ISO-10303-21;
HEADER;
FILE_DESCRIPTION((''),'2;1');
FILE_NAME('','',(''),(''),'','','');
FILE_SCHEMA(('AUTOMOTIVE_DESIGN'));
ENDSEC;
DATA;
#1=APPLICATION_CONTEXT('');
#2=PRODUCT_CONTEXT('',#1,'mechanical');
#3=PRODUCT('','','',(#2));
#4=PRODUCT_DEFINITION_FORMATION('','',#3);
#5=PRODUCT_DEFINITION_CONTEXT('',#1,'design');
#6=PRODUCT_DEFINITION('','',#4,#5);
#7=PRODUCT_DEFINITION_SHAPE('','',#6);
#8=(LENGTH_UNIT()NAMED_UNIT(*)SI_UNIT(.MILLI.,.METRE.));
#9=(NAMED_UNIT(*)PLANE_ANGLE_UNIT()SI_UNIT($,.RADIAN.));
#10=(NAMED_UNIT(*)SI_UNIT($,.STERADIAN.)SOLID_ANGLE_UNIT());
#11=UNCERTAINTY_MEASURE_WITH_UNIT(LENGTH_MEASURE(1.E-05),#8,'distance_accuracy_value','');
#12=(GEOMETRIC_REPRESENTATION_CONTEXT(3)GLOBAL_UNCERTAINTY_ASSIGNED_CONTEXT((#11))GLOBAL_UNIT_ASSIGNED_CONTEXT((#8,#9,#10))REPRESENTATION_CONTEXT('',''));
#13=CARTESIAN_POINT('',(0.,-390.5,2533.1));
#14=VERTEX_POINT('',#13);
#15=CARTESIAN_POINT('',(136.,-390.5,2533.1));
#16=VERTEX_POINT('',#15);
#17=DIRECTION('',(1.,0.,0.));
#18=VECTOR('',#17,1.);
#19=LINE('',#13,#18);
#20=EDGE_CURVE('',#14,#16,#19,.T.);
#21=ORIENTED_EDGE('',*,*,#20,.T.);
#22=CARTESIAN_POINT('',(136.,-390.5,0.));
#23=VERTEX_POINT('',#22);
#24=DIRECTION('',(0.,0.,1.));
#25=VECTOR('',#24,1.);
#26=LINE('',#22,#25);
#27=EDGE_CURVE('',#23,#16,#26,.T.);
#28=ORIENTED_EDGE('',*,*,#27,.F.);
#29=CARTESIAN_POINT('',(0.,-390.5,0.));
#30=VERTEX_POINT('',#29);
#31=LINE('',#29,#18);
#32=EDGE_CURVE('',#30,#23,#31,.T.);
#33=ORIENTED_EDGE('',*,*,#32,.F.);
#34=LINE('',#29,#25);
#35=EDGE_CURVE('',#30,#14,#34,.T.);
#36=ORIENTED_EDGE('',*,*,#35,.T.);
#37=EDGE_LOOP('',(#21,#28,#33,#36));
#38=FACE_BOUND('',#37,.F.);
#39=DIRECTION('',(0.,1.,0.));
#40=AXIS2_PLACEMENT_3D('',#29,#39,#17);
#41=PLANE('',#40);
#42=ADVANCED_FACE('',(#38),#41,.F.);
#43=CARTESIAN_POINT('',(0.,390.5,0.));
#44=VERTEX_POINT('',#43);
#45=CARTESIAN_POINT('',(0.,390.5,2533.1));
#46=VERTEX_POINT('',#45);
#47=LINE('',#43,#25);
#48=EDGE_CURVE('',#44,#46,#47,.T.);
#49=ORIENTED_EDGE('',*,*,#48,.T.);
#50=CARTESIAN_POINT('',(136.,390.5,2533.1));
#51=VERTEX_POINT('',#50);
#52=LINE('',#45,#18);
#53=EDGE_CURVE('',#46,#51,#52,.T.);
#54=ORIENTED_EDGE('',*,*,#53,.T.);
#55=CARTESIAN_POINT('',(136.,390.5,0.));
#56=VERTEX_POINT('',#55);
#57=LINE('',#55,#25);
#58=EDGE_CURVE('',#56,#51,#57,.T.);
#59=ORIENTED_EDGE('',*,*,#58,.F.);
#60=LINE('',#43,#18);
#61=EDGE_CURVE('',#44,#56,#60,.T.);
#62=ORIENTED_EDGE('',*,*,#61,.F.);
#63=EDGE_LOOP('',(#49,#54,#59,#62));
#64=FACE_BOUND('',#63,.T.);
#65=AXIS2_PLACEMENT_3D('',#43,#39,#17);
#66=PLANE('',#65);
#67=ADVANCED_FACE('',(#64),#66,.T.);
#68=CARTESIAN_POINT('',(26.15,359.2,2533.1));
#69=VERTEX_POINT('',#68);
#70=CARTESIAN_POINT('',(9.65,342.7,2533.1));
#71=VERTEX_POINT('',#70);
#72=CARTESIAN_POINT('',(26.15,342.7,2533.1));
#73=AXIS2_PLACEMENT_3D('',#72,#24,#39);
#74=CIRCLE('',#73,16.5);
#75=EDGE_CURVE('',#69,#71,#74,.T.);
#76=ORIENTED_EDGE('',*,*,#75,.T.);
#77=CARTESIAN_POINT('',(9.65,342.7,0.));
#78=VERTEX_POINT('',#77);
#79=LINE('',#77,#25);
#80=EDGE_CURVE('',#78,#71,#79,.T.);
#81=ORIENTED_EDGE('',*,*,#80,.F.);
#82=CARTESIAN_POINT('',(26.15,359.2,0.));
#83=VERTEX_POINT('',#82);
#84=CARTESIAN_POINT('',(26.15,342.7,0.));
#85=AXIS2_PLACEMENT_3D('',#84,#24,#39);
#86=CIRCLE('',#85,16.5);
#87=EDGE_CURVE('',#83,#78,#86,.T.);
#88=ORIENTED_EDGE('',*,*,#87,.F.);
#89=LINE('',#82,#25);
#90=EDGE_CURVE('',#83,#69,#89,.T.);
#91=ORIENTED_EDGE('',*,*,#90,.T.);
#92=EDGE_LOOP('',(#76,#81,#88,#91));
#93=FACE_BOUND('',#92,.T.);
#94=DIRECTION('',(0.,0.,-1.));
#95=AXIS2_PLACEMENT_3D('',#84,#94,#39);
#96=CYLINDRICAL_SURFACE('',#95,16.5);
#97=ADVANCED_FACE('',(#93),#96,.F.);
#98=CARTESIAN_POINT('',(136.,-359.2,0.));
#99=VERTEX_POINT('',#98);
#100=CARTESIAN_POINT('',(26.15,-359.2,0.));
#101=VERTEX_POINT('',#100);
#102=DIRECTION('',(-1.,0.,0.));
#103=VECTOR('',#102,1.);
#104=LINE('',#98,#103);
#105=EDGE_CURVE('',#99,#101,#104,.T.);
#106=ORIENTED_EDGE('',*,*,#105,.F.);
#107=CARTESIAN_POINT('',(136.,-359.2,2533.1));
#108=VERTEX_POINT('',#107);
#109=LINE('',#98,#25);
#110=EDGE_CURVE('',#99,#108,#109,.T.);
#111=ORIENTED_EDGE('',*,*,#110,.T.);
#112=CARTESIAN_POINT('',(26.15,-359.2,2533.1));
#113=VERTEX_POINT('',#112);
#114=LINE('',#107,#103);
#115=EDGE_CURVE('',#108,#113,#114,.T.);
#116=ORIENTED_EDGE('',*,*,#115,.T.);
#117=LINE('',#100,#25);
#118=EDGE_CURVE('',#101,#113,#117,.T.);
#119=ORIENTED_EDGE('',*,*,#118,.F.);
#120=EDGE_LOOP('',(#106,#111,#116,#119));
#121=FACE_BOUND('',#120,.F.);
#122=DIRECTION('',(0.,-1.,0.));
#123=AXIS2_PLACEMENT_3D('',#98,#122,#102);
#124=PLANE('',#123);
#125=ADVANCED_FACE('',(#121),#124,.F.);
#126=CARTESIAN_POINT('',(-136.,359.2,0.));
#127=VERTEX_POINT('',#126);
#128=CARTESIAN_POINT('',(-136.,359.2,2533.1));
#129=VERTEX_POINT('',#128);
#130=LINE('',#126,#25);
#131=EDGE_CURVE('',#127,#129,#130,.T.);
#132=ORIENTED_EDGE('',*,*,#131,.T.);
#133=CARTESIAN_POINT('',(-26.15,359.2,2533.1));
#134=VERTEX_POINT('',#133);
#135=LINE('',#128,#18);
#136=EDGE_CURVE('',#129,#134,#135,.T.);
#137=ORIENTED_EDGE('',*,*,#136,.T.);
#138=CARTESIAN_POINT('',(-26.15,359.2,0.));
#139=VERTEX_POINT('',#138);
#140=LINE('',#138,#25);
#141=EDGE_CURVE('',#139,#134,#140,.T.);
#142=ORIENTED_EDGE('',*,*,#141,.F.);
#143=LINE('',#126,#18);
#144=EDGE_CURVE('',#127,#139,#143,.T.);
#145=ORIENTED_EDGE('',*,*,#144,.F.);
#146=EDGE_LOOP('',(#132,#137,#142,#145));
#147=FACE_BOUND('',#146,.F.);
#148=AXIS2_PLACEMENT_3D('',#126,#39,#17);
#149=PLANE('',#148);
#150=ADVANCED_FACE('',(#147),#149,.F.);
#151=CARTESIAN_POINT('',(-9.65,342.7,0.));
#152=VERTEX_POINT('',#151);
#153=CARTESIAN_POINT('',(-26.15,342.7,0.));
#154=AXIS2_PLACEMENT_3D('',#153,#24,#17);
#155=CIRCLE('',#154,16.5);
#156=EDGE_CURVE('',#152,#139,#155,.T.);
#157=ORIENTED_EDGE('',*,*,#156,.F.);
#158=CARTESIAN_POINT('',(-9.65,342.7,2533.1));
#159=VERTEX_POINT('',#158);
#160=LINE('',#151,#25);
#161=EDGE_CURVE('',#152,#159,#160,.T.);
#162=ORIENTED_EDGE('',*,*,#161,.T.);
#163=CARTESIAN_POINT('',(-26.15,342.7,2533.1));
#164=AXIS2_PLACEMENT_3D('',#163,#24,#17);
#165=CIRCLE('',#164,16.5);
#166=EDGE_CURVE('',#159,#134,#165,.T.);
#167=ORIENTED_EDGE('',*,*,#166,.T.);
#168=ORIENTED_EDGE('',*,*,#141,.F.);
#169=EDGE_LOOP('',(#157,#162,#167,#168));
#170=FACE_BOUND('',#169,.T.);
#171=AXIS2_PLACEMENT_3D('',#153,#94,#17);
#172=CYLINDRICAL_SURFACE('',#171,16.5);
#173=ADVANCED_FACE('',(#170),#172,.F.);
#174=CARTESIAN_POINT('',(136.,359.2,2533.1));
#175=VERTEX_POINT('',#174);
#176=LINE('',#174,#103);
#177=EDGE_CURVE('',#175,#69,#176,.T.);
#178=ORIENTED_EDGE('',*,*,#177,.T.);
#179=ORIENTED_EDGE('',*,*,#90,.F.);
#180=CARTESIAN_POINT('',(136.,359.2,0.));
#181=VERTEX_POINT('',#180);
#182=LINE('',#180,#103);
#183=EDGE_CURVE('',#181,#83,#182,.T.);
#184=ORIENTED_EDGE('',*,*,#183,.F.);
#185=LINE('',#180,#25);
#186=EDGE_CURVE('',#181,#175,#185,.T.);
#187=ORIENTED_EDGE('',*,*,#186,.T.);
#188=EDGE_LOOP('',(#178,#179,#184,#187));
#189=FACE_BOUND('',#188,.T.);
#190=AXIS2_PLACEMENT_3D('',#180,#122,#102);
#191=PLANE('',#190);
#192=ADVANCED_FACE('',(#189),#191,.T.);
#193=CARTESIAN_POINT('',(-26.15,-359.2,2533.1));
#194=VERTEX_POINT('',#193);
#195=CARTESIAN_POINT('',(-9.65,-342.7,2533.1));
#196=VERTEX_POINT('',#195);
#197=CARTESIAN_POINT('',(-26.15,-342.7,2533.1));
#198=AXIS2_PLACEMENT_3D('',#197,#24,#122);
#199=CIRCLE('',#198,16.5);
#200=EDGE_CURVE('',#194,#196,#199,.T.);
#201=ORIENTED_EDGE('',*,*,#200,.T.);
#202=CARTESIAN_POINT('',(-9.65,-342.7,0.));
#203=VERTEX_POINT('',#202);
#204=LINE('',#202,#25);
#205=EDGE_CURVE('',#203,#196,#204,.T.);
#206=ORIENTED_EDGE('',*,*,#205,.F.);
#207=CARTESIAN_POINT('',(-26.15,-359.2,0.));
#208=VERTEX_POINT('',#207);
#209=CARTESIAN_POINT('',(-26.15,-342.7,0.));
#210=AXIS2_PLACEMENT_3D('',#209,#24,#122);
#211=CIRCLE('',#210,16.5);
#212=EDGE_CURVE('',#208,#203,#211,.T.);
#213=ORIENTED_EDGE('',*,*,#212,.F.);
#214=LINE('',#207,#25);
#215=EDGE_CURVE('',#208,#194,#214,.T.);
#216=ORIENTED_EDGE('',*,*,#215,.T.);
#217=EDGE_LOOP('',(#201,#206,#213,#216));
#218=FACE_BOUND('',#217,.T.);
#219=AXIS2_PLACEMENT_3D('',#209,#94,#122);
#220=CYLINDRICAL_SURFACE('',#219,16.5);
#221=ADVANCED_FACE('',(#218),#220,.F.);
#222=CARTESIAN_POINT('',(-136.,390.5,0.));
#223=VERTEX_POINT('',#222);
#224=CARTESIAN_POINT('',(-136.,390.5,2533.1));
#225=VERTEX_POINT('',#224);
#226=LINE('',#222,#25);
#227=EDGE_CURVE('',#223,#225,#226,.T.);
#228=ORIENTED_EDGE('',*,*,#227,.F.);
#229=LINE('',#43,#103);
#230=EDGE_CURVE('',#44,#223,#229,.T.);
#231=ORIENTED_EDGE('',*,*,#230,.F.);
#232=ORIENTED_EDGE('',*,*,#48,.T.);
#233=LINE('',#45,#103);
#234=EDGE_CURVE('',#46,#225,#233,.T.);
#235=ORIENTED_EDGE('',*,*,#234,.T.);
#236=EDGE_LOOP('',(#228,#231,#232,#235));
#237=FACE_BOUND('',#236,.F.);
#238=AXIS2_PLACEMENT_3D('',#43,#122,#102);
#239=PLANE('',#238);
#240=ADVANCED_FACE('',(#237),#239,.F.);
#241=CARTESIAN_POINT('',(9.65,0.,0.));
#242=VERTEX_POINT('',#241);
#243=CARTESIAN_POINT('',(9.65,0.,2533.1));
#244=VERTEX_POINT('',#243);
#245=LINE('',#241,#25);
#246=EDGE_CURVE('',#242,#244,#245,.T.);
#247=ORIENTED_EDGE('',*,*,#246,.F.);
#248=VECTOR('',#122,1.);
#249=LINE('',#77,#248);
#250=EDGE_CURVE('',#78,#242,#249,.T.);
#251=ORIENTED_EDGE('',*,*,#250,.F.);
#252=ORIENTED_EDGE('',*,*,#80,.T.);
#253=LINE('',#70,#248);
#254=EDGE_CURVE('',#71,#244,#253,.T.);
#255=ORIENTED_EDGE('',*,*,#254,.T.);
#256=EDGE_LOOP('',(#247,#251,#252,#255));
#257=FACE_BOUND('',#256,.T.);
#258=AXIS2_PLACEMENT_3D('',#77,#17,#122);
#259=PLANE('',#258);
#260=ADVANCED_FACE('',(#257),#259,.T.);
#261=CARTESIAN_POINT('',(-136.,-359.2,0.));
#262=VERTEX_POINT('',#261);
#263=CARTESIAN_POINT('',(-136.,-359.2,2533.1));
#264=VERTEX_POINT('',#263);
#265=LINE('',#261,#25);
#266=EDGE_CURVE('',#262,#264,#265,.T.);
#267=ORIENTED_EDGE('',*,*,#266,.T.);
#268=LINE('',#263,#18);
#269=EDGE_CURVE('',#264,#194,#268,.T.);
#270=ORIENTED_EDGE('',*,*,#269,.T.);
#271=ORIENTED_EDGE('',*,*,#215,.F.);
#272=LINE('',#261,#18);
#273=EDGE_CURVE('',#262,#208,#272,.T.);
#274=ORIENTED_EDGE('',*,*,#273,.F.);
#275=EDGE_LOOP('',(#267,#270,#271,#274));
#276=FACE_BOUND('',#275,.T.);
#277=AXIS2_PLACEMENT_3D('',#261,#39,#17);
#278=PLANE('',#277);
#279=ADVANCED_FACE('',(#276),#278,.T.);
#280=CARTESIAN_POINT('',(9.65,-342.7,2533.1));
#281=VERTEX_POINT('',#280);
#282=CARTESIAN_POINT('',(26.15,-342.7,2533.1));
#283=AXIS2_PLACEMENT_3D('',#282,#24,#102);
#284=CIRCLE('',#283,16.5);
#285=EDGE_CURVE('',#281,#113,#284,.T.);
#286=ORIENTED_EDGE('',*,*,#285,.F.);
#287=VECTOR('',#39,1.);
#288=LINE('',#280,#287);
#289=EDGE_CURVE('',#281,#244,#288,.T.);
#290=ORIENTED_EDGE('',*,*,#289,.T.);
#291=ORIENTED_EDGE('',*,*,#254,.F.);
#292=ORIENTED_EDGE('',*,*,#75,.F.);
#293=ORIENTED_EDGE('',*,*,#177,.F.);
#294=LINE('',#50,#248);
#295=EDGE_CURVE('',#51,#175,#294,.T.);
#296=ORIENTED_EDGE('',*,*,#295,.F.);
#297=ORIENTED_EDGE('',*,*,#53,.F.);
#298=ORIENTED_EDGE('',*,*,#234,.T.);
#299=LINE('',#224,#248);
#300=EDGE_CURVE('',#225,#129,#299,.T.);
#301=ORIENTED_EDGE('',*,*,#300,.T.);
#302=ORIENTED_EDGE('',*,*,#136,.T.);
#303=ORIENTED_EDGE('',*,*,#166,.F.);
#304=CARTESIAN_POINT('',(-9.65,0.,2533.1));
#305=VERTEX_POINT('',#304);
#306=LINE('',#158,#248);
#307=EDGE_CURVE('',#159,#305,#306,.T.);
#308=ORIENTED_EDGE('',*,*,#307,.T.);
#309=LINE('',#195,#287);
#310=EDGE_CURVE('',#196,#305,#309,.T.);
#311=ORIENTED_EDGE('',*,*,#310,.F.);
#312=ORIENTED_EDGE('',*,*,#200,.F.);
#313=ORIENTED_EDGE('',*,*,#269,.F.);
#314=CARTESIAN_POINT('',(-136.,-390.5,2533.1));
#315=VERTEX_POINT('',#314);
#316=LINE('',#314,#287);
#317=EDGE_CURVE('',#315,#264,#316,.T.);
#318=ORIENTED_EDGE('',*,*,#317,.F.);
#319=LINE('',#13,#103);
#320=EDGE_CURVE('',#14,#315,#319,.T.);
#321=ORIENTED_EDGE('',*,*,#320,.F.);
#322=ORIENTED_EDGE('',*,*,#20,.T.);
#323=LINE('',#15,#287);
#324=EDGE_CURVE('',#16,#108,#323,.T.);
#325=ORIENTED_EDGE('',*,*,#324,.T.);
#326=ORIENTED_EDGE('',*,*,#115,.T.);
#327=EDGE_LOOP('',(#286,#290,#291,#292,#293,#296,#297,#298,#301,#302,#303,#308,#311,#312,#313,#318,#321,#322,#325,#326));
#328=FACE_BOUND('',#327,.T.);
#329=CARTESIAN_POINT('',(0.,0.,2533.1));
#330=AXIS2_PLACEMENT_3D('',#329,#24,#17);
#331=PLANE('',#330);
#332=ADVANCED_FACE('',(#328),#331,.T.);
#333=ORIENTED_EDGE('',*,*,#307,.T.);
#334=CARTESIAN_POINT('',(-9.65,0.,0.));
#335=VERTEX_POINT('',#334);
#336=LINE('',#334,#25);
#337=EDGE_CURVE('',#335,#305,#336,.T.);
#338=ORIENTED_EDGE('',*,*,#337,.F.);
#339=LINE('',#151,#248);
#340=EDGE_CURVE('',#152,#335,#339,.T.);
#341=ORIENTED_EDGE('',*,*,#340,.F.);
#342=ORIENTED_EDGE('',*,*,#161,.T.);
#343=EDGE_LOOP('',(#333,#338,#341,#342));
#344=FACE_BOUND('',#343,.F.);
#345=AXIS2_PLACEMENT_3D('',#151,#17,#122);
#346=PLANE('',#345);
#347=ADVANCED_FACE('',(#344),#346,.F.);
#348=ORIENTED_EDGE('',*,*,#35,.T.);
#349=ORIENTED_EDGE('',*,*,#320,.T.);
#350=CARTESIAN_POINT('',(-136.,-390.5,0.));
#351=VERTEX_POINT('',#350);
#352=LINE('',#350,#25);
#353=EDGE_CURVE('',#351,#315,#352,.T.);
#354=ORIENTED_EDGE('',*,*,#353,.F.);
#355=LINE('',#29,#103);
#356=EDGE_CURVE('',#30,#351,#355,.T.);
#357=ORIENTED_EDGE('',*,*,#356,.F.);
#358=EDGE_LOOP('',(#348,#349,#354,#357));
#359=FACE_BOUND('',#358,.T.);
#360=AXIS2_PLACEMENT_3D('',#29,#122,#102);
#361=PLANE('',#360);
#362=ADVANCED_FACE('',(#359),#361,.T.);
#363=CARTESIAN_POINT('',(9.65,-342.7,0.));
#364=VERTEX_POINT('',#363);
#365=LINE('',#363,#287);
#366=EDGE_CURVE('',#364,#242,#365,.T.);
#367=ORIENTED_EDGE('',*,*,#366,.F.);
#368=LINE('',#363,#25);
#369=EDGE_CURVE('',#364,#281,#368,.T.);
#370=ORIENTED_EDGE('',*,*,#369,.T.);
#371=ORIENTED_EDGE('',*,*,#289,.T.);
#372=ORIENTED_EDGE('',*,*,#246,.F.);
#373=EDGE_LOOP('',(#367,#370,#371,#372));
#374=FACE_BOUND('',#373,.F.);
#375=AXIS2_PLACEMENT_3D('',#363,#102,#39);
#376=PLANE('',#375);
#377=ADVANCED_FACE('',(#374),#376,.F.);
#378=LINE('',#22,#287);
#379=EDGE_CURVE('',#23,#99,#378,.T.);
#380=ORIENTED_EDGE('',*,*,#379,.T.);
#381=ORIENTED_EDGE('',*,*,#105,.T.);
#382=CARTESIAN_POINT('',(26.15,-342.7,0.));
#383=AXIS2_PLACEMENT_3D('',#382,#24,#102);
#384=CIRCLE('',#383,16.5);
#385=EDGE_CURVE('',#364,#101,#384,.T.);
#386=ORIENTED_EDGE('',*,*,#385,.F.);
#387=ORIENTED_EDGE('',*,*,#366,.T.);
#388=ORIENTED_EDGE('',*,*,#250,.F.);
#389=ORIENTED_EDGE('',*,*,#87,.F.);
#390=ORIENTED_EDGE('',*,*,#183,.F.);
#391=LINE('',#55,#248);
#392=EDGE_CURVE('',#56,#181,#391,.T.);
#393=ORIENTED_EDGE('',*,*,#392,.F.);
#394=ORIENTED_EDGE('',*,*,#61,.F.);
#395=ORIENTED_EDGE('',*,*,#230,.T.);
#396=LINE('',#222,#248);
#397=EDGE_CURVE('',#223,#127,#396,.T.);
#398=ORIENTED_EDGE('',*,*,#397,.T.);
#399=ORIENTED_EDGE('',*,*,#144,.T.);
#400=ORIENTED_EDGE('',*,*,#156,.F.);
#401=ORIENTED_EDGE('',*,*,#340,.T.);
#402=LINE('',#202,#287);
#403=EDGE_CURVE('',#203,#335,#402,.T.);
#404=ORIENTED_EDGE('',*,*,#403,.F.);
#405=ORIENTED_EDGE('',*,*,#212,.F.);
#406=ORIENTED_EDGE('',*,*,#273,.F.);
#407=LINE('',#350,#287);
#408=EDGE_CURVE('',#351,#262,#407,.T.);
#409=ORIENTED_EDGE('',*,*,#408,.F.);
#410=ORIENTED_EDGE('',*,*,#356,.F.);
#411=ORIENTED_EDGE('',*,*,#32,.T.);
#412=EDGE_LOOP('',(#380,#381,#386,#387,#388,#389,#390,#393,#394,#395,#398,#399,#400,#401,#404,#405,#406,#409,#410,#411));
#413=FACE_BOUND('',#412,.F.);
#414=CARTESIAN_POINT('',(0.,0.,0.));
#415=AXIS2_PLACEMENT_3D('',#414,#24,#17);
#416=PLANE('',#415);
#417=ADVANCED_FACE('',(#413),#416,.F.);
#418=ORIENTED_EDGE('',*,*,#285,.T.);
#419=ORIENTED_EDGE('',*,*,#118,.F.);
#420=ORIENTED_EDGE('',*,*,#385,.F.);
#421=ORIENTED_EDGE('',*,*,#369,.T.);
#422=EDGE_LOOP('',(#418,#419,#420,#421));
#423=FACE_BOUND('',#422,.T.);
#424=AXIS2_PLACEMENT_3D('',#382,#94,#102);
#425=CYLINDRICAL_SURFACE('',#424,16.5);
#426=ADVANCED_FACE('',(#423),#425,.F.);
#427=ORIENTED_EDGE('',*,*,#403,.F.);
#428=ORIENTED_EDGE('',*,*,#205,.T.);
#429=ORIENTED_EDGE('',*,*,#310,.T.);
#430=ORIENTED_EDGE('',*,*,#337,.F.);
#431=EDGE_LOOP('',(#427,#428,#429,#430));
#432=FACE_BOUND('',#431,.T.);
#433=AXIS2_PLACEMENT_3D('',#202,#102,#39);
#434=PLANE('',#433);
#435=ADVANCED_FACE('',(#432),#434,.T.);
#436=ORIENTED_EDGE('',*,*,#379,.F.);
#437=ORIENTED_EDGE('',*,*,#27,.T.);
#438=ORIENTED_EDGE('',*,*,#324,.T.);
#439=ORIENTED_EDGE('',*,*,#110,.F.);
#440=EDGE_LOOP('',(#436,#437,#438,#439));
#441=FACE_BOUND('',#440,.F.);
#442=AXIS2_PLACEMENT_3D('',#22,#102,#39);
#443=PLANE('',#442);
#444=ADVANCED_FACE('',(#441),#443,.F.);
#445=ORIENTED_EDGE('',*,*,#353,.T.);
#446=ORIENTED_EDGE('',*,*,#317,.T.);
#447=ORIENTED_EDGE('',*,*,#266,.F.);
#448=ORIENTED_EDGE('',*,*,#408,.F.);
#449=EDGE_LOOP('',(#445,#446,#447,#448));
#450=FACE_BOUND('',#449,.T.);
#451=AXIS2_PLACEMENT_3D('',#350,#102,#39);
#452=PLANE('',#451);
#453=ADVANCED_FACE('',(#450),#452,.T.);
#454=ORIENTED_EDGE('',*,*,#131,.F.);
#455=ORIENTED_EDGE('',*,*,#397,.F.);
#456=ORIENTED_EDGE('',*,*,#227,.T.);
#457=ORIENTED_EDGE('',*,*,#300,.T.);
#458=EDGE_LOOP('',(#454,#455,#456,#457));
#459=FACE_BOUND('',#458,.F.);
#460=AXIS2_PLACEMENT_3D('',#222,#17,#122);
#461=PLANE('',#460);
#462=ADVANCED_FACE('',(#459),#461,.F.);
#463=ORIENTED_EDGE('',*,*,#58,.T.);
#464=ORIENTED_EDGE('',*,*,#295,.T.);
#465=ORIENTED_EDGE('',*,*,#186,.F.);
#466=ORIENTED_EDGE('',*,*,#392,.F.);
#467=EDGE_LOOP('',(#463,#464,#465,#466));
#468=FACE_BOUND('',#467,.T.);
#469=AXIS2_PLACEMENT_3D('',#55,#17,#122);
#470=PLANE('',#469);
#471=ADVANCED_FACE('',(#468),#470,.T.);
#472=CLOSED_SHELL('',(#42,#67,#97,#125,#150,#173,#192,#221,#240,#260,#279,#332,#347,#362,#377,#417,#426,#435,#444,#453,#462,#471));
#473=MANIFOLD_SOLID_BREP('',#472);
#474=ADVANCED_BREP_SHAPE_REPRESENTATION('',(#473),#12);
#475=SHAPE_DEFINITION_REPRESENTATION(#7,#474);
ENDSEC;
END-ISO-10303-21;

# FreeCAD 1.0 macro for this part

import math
import FreeCAD as App
import Part
import Sketcher

doc = App.newDocument("Part")
body = doc.addObject("PartDesign::Body", "Body")

# Sketch on XY plane
sketch1 = body.newObject("Sketcher::SketchObject", "Sketch")
sketch1.AttachmentSupport = (doc.getObject("XY_Plane"), [""])
sketch1.MapMode = "FlatFace"
sketch1.addGeometry([
    Part.LineSegment(App.Vector(-136, -359, 0), App.Vector(-136, -390, 0)),  # 0
    Part.LineSegment(App.Vector(-136, -390, 0), App.Vector(136, -390, 0)),  # 1
    Part.LineSegment(App.Vector(136, -390, 0), App.Vector(136, -359, 0)),  # 2
    Part.LineSegment(App.Vector(136, -359, 0), App.Vector(26, -359, 0)),  # 3
    Part.ArcOfCircle(Part.Circle(App.Vector(26, -343, 0), App.Vector(0, 0, 1), 16), math.radians(180), math.radians(270)),  # 4
    Part.LineSegment(App.Vector(10, -343, 0), App.Vector(10, 343, 0)),  # 5
    Part.ArcOfCircle(Part.Circle(App.Vector(26, 343, 0), App.Vector(0, 0, 1), 16), math.radians(90), math.radians(180)),  # 6
    Part.LineSegment(App.Vector(26, 359, 0), App.Vector(136, 359, 0)),  # 7
    Part.LineSegment(App.Vector(136, 359, 0), App.Vector(136, 390, 0)),  # 8
    Part.LineSegment(App.Vector(136, 390, 0), App.Vector(-136, 390, 0)),  # 9
    Part.LineSegment(App.Vector(-136, 390, 0), App.Vector(-136, 359, 0)),  # 10
    Part.LineSegment(App.Vector(-136, 359, 0), App.Vector(-26, 359, 0)),  # 11
    Part.ArcOfCircle(Part.Circle(App.Vector(-26, 343, 0), App.Vector(0, 0, 1), 16), math.radians(0), math.radians(90)),  # 12
    Part.LineSegment(App.Vector(-10, 343, 0), App.Vector(-10, -343, 0)),  # 13
    Part.ArcOfCircle(Part.Circle(App.Vector(-26, -343, 0), App.Vector(0, 0, 1), 16), math.radians(-90), math.radians(0)),  # 14
    Part.LineSegment(App.Vector(-26, -359, 0), App.Vector(-136, -359, 0)),  # 15
], False)
sketch1.addConstraint([
    Sketcher.Constraint("Coincident", 0, 2, 1, 1),
    Sketcher.Constraint("Coincident", 1, 2, 2, 1),
    Sketcher.Constraint("Coincident", 2, 2, 3, 1),
    Sketcher.Constraint("Tangent", 3, 2, 4, 2),
    Sketcher.Constraint("Tangent", 4, 1, 5, 1),
    Sketcher.Constraint("Tangent", 5, 2, 6, 2),
    Sketcher.Constraint("Tangent", 6, 1, 7, 1),
    Sketcher.Constraint("Coincident", 7, 2, 8, 1),
    Sketcher.Constraint("Coincident", 8, 2, 9, 1),
    Sketcher.Constraint("Coincident", 9, 2, 10, 1),
    Sketcher.Constraint("Coincident", 10, 2, 11, 1),
    Sketcher.Constraint("Tangent", 11, 2, 12, 2),
    Sketcher.Constraint("Tangent", 12, 1, 13, 1),
    Sketcher.Constraint("Tangent", 13, 2, 14, 2),
    Sketcher.Constraint("Tangent", 14, 1, 15, 1),
    Sketcher.Constraint("Coincident", 15, 2, 0, 1),
    Sketcher.Constraint("Vertical", 0),
    Sketcher.Constraint("Horizontal", 1),
    Sketcher.Constraint("Vertical", 2),
    Sketcher.Constraint("Horizontal", 3),
    Sketcher.Constraint("Vertical", 5),
    Sketcher.Constraint("Horizontal", 7),
    Sketcher.Constraint("Vertical", 8),
    Sketcher.Constraint("Horizontal", 9),
    Sketcher.Constraint("Vertical", 10),
    Sketcher.Constraint("Horizontal", 11),
    Sketcher.Constraint("Vertical", 13),
    Sketcher.Constraint("Horizontal", 15),
    Sketcher.Constraint("Equal", 4, 6),
    Sketcher.Constraint("Equal", 6, 12),
    Sketcher.Constraint("Equal", 12, 14),
    Sketcher.Constraint("Symmetric", 4, 3, 12, 3, -1, 1),
    Sketcher.Constraint("Symmetric", 0, 2, 8, 2, -1, 1),
    Sketcher.Constraint("Symmetric", 7, 2, 10, 2, -2),
    Sketcher.Constraint("Symmetric", 2, 2, 15, 2, -2),
    Sketcher.Constraint("Radius", 4, 16.5),
    Sketcher.Constraint("DistanceY", 0, 2, 0, 1, 31.3),
    Sketcher.Constraint("DistanceX", 0, 2, -1, 1, 136.0),
    Sketcher.Constraint("DistanceY", 0, 2, -1, 1, 390.5),
    Sketcher.Constraint("DistanceX", -1, 1, 4, 1, 9.65),
])
pad1 = body.newObject("PartDesign::Pad", "Pad")
pad1.Profile = sketch1
pad1.Length = 2533.1

doc.recompute()
